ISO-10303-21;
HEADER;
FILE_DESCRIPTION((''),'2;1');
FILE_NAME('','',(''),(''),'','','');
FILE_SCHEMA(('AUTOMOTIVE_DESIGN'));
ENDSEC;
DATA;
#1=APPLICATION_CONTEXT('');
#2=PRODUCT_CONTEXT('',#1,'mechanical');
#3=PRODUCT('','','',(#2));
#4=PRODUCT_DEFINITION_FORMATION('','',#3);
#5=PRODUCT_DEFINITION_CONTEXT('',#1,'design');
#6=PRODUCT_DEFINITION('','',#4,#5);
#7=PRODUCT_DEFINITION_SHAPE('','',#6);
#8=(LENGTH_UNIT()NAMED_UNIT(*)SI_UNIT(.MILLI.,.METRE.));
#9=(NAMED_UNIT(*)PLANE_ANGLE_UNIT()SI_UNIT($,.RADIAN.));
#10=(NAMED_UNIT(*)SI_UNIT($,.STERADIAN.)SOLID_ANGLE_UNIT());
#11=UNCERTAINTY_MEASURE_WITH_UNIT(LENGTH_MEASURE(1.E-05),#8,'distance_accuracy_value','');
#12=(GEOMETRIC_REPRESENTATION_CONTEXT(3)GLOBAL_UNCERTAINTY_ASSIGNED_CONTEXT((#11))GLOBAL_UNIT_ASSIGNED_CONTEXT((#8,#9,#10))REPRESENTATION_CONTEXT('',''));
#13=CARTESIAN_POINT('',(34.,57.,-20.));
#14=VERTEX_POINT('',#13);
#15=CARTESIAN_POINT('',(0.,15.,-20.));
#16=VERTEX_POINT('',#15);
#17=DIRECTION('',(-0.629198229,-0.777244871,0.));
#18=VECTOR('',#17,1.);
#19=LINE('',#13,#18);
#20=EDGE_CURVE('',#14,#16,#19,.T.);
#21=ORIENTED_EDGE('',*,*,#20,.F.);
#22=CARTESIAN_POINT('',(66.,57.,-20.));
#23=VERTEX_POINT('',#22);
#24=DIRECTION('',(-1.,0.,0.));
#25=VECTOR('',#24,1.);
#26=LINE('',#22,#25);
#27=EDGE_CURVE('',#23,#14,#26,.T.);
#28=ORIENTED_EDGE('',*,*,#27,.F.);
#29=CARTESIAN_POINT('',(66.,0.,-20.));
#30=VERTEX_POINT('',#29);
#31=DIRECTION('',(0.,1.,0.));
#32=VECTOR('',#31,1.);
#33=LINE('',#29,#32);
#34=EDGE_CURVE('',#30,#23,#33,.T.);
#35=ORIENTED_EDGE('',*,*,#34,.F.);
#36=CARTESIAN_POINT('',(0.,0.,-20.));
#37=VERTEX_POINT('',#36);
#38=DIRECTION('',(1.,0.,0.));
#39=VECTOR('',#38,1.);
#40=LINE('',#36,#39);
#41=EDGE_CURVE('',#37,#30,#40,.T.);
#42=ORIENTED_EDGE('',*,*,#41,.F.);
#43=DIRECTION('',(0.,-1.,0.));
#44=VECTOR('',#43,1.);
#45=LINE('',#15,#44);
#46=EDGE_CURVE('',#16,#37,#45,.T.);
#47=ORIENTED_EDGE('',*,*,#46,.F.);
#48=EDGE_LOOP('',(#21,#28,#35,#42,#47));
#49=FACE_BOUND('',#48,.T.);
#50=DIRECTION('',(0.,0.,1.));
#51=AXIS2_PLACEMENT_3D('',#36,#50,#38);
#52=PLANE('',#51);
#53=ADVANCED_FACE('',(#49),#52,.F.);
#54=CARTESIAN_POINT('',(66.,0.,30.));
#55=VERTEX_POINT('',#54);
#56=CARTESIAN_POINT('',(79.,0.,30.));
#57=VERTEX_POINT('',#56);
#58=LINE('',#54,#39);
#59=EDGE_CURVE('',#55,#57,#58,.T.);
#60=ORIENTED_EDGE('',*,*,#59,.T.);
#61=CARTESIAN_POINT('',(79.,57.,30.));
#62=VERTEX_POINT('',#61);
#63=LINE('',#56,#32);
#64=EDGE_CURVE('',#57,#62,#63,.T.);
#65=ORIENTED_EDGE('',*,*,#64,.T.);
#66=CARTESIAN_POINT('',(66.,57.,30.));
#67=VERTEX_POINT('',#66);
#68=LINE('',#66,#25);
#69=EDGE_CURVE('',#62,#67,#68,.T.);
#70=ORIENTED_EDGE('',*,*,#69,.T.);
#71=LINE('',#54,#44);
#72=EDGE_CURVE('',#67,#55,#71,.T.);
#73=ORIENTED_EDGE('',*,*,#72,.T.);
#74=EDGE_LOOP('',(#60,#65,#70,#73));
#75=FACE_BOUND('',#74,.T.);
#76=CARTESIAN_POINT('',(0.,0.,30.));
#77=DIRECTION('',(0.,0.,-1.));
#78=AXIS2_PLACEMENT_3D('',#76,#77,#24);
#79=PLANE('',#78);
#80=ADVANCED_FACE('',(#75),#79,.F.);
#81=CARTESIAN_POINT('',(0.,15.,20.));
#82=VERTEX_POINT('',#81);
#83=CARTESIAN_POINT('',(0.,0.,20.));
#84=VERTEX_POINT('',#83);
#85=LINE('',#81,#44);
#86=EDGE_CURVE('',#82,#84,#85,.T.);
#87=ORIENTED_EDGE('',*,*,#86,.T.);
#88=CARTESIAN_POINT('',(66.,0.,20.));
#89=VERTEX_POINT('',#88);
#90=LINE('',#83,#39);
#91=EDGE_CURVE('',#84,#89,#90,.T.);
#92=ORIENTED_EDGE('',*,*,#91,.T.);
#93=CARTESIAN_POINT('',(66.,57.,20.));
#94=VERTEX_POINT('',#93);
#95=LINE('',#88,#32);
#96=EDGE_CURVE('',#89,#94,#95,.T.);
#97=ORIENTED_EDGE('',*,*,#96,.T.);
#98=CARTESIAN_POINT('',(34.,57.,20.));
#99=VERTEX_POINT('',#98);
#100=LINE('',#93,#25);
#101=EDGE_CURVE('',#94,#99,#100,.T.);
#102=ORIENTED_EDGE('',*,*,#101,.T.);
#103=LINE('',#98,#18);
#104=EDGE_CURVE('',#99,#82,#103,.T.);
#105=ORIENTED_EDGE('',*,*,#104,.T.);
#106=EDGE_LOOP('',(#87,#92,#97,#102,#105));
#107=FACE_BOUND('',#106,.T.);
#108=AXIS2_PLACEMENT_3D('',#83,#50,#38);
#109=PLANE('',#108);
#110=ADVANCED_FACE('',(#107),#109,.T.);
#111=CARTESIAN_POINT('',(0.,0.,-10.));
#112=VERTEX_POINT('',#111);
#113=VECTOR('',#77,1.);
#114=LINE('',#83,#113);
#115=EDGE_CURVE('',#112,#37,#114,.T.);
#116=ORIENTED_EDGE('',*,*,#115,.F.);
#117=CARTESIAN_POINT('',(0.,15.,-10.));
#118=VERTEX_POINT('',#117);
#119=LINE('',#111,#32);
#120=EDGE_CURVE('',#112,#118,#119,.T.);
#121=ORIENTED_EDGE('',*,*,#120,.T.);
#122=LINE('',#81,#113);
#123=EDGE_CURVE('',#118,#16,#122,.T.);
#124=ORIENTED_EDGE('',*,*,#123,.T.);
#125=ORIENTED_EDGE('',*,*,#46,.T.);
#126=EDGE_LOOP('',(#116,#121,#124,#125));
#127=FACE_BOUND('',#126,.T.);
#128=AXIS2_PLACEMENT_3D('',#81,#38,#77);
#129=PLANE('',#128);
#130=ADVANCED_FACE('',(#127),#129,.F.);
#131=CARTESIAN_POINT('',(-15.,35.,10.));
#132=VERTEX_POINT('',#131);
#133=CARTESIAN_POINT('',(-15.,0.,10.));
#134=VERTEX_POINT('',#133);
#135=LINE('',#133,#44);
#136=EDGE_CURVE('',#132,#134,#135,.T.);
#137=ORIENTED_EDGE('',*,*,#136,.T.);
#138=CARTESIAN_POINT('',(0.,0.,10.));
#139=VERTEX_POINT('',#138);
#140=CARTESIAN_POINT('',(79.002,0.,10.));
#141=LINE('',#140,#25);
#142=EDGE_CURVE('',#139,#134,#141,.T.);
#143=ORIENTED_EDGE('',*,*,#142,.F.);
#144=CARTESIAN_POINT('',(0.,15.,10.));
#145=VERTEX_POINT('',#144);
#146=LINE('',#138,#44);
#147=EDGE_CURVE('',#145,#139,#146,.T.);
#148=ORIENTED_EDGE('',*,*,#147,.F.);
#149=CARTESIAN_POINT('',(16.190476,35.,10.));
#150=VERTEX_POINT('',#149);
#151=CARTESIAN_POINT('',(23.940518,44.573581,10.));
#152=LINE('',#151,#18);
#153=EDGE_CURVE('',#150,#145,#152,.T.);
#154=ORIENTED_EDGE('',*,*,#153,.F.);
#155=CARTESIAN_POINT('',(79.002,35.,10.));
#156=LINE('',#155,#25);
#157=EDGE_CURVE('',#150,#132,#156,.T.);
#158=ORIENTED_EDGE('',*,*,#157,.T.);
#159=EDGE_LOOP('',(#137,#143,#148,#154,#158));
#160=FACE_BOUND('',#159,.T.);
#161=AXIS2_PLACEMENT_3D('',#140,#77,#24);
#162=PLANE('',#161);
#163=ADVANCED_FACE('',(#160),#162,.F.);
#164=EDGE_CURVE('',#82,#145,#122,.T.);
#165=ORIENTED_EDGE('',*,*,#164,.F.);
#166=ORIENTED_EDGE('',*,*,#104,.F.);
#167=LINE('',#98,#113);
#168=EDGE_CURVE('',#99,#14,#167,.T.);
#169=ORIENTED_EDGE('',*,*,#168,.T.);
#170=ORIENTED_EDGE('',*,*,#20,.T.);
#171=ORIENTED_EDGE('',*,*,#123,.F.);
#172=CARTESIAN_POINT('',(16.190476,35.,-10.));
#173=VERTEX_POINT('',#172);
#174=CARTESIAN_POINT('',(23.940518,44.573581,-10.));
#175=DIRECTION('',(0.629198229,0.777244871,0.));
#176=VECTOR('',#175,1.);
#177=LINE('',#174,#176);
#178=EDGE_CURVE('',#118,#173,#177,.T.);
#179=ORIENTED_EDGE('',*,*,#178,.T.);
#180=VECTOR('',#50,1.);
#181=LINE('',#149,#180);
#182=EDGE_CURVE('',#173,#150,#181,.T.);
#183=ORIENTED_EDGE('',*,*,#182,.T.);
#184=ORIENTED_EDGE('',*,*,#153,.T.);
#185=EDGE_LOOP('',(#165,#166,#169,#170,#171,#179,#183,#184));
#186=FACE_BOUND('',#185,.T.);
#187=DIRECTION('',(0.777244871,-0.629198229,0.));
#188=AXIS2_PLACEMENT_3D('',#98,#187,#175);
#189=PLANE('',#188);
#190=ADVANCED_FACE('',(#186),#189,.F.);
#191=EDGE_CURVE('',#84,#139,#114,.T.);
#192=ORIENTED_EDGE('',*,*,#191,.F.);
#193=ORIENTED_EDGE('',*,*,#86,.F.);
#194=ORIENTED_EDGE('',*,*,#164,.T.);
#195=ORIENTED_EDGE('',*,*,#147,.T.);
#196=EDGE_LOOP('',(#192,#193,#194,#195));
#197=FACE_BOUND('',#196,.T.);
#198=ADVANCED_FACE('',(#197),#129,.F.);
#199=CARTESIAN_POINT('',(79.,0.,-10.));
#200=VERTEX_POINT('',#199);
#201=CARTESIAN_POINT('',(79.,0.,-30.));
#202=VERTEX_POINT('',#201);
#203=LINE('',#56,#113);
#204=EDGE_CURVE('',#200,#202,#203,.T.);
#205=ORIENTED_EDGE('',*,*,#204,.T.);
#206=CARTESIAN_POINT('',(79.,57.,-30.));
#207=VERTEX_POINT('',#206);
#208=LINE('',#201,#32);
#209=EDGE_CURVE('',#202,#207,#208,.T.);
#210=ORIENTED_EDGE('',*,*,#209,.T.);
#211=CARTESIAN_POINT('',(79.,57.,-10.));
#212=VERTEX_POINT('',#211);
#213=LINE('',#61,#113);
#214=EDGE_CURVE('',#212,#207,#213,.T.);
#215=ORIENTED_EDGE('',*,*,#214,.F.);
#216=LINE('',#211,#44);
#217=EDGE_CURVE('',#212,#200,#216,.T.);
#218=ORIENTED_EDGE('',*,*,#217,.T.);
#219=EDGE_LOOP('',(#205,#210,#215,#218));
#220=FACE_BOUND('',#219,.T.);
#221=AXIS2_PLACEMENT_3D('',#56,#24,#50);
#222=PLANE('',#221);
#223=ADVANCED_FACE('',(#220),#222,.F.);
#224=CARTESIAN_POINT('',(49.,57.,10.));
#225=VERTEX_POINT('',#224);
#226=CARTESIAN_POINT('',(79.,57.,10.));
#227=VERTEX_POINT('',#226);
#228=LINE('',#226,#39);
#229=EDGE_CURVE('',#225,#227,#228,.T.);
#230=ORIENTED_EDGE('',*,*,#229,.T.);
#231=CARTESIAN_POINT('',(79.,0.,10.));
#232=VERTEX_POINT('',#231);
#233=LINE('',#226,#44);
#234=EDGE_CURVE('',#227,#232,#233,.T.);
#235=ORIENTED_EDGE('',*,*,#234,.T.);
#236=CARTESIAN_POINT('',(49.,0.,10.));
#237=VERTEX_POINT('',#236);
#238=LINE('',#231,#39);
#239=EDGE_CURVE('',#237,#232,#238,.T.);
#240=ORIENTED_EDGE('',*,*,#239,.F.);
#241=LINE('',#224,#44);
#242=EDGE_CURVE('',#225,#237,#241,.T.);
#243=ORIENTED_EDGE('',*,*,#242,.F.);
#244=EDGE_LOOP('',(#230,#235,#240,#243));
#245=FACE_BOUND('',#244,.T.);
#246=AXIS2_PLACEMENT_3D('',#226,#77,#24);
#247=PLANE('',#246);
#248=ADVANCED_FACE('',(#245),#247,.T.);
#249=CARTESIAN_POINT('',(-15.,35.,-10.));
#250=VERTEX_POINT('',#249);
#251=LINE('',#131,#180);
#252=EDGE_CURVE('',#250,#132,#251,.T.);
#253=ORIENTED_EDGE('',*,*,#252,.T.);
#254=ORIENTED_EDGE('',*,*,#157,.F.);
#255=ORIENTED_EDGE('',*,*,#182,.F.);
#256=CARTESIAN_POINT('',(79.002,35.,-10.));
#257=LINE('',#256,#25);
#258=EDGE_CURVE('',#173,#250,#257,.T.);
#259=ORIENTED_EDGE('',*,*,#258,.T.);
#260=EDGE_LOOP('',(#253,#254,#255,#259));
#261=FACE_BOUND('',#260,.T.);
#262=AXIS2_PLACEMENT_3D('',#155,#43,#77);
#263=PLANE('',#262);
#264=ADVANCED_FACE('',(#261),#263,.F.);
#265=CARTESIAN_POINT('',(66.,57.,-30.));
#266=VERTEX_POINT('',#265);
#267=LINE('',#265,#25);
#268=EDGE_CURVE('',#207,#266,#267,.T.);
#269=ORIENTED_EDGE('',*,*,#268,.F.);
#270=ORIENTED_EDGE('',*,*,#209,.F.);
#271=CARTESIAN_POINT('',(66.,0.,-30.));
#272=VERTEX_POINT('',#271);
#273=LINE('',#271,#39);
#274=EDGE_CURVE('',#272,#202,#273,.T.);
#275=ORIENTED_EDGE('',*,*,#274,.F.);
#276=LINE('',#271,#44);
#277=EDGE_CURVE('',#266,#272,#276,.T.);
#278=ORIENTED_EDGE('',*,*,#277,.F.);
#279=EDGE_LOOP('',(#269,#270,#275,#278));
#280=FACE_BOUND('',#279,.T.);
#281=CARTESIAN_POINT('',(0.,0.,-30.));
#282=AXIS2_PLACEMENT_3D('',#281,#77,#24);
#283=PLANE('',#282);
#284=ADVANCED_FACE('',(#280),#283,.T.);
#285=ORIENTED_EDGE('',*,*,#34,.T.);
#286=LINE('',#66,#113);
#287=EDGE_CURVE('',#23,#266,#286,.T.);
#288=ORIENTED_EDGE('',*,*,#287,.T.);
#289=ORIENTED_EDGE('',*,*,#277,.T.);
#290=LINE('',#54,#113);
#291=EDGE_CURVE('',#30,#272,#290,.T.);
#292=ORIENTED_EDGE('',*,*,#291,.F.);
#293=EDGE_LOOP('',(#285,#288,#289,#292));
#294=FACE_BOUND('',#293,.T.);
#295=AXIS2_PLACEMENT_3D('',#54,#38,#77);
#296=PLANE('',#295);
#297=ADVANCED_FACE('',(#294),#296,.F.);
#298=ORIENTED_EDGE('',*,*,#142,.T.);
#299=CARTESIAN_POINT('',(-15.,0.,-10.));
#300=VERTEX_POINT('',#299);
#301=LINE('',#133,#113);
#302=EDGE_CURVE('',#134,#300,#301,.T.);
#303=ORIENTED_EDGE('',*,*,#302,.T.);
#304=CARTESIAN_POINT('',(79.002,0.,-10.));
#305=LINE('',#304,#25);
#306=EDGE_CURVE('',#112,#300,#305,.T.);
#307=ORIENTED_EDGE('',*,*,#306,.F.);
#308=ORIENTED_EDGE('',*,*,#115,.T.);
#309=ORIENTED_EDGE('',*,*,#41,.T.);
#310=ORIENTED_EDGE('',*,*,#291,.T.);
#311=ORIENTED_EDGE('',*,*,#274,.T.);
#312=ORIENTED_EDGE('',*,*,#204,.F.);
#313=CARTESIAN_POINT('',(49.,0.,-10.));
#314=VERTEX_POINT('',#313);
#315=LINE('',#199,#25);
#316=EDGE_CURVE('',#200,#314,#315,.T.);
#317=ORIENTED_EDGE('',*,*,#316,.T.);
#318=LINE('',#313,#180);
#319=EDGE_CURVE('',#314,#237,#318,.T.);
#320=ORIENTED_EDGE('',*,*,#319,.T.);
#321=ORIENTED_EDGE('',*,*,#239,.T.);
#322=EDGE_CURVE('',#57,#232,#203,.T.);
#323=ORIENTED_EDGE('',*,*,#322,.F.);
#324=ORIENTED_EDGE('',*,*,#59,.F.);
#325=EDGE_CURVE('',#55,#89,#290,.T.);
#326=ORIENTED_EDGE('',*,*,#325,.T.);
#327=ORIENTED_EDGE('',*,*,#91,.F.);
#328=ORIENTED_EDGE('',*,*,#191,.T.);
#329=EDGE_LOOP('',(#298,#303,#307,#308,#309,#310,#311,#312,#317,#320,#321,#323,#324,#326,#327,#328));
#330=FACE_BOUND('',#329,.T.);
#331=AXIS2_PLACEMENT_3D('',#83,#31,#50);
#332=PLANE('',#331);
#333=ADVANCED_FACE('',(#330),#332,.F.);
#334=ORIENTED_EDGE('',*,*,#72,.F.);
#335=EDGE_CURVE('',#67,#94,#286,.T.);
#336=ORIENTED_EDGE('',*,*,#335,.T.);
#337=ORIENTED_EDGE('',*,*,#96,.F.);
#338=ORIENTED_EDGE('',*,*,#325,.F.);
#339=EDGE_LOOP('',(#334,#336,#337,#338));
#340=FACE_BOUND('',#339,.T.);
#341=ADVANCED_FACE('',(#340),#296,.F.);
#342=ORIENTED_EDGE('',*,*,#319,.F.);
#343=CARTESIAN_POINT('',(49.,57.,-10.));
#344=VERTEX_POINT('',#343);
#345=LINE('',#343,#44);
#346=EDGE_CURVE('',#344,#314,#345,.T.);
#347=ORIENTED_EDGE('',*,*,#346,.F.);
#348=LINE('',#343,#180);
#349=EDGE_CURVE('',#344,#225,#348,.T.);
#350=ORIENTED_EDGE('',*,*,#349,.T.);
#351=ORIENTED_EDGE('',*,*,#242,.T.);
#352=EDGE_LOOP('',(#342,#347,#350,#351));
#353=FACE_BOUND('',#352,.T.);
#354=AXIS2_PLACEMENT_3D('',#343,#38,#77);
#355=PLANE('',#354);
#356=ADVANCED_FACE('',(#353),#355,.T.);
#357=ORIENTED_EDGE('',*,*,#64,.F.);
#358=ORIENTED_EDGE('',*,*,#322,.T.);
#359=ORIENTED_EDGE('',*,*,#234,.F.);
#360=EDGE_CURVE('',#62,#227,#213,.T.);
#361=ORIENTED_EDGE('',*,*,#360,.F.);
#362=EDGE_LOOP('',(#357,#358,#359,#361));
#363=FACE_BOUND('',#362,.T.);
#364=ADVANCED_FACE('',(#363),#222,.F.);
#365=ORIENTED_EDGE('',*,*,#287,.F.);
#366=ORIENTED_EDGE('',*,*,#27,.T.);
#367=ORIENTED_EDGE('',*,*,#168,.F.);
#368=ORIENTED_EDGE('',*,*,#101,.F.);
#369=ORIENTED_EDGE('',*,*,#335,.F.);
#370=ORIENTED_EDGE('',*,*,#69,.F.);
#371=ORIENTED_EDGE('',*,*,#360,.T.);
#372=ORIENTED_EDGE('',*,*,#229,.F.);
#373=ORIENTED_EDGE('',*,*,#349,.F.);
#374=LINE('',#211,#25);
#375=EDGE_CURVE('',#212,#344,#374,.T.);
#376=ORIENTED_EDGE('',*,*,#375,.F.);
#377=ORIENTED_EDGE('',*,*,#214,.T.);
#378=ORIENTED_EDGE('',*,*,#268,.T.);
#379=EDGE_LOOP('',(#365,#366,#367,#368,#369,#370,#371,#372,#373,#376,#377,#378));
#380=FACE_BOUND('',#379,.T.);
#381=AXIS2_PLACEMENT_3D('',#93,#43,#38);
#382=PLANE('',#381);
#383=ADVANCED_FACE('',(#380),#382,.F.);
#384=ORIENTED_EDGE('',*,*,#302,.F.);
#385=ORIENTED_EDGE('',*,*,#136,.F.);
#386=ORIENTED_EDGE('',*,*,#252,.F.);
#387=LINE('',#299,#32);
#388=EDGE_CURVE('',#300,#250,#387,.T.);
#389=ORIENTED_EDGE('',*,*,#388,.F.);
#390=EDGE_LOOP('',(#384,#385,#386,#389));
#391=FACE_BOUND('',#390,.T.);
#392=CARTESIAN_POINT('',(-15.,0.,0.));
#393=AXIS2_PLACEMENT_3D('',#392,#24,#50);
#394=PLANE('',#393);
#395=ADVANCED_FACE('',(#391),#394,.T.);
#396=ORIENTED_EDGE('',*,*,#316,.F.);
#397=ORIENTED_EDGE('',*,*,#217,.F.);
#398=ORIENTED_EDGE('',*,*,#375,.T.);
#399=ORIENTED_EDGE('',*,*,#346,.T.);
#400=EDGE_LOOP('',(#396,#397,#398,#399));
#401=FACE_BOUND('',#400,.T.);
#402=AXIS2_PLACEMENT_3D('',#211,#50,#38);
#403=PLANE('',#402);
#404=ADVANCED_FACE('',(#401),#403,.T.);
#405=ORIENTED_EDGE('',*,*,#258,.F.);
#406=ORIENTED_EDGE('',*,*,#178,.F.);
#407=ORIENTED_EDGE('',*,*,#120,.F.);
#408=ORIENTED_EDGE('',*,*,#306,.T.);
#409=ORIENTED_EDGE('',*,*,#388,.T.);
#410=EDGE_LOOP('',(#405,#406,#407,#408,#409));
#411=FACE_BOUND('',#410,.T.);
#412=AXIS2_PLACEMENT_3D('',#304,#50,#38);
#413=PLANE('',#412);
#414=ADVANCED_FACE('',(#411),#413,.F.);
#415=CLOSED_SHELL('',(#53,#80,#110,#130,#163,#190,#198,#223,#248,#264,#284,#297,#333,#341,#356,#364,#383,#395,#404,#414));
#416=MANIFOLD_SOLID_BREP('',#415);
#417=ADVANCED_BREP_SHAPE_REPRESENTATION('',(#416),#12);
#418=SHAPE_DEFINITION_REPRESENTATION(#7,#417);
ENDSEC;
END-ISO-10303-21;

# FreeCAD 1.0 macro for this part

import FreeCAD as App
import Part
import Sketcher

V = App.Vector
Q = App.Units.Quantity

doc = App.newDocument("Part")
body = doc.addObject("PartDesign::Body", "Body")

sketch1 = body.newObject("Sketcher::SketchObject", "Sketch")
sketch1.AttachmentSupport = (doc.getObject("XY_Plane"), [""])
sketch1.MapMode = "FlatFace"
sketch1.addGeometry(Part.LineSegment(V(0, 0, 0), V(66, 0, 0)), False)
sketch1.addGeometry(Part.LineSegment(V(66, 0, 0), V(66, 57, 0)), False)
sketch1.addGeometry(Part.LineSegment(V(66, 57, 0), V(34, 57, 0)), False)
sketch1.addGeometry(Part.LineSegment(V(34, 57, 0), V(0, 15, 0)), False)
sketch1.addGeometry(Part.LineSegment(V(0, 15, 0), V(0, 0, 0)), False)
sketch1.addConstraint(Sketcher.Constraint("Coincident", 0, 2, 1, 1))
sketch1.addConstraint(Sketcher.Constraint("Coincident", 1, 2, 2, 1))
sketch1.addConstraint(Sketcher.Constraint("Coincident", 2, 2, 3, 1))
sketch1.addConstraint(Sketcher.Constraint("Coincident", 3, 2, 4, 1))
sketch1.addConstraint(Sketcher.Constraint("Coincident", 4, 2, 0, 1))
sketch1.addConstraint(Sketcher.Constraint("Horizontal", 0))
sketch1.addConstraint(Sketcher.Constraint("Vertical", 1))
sketch1.addConstraint(Sketcher.Constraint("Horizontal", 2))
sketch1.addConstraint(Sketcher.Constraint("Vertical", 4))
sketch1.addConstraint(Sketcher.Constraint("Coincident", 4, 2, -1, 1))
sketch1.addConstraint(Sketcher.Constraint("DistanceX", 0, 1, 0, 2, Q("66 mm")))
sketch1.addConstraint(Sketcher.Constraint("DistanceX", 2, 2, 2, 1, Q("32 mm")))
sketch1.addConstraint(Sketcher.Constraint("DistanceY", 1, 1, 1, 2, Q("57 mm")))
sketch1.addConstraint(Sketcher.Constraint("DistanceY", 4, 2, 4, 1, Q("15 mm")))
pad1 = body.newObject("PartDesign::Pad", "Pad")
pad1.Profile = sketch1
pad1.Length = 40
pad1.Midplane = True

sketch2 = body.newObject("Sketcher::SketchObject", "Sketch001")
sketch2.AttachmentSupport = (doc.getObject("XY_Plane"), [""])
sketch2.MapMode = "FlatFace"
sketch2.addGeometry(Part.LineSegment(V(66, 57, 0), V(66, 0, 0)), False)
sketch2.addGeometry(Part.LineSegment(V(66, 0, 0), V(79, 0, 0)), False)
sketch2.addGeometry(Part.LineSegment(V(79, 0, 0), V(79, 57, 0)), False)
sketch2.addGeometry(Part.LineSegment(V(79, 57, 0), V(66, 57, 0)), False)
sketch2.addConstraint(Sketcher.Constraint("Coincident", 0, 2, 1, 1))
sketch2.addConstraint(Sketcher.Constraint("Coincident", 1, 2, 2, 1))
sketch2.addConstraint(Sketcher.Constraint("Coincident", 2, 2, 3, 1))
sketch2.addConstraint(Sketcher.Constraint("Coincident", 3, 2, 0, 1))
sketch2.addConstraint(Sketcher.Constraint("Vertical", 0))
sketch2.addConstraint(Sketcher.Constraint("Horizontal", 1))
sketch2.addConstraint(Sketcher.Constraint("Vertical", 2))
sketch2.addConstraint(Sketcher.Constraint("Horizontal", 3))
sketch2.addConstraint(Sketcher.Constraint("PointOnObject", 0, 2, -1))
sketch2.addConstraint(Sketcher.Constraint("DistanceX", 1, 1, 1, 2, Q("13 mm")))
sketch2.addConstraint(Sketcher.Constraint("DistanceY", 0, 2, 0, 1, Q("57 mm")))
sketch2.addConstraint(Sketcher.Constraint("DistanceX", -1, 1, 0, 2, Q("66 mm")))
pad2 = body.newObject("PartDesign::Pad", "Pad001")
pad2.Profile = sketch2
pad2.Length = 60
pad2.Midplane = True

sketch3 = body.newObject("Sketcher::SketchObject", "Sketch002")
sketch3.AttachmentSupport = (doc.getObject("XZ_Plane"), [""])
sketch3.MapMode = "FlatFace"
sketch3.addGeometry(Part.LineSegment(V(49, -10, 0), V(49, 10, 0)), False)
sketch3.addGeometry(Part.LineSegment(V(49, 10, 0), V(79, 10, 0)), False)
sketch3.addGeometry(Part.LineSegment(V(79, 10, 0), V(79, -10, 0)), False)
sketch3.addGeometry(Part.LineSegment(V(79, -10, 0), V(49, -10, 0)), False)
sketch3.addConstraint(Sketcher.Constraint("Coincident", 0, 2, 1, 1))
sketch3.addConstraint(Sketcher.Constraint("Coincident", 1, 2, 2, 1))
sketch3.addConstraint(Sketcher.Constraint("Coincident", 2, 2, 3, 1))
sketch3.addConstraint(Sketcher.Constraint("Coincident", 3, 2, 0, 1))
sketch3.addConstraint(Sketcher.Constraint("Vertical", 0))
sketch3.addConstraint(Sketcher.Constraint("Horizontal", 1))
sketch3.addConstraint(Sketcher.Constraint("Vertical", 2))
sketch3.addConstraint(Sketcher.Constraint("Horizontal", 3))
sketch3.addConstraint(Sketcher.Constraint("DistanceX", 1, 1, 1, 2, Q("30 mm")))
sketch3.addConstraint(Sketcher.Constraint("DistanceY", 0, 1, 0, 2, Q("20 mm")))
sketch3.addConstraint(Sketcher.Constraint("DistanceX", -1, 1, 0, 2, Q("49 mm")))
sketch3.addConstraint(Sketcher.Constraint("DistanceY", -1, 1, 0, 2, Q("10 mm")))
pocket1 = body.newObject("PartDesign::Pocket", "Pocket")
pocket1.Profile = sketch3
pocket1.Type = "ThroughAll"

sketch4 = body.newObject("Sketcher::SketchObject", "Sketch003")
sketch4.AttachmentSupport = (doc.getObject("YZ_Plane"), [""])
sketch4.MapMode = "FlatFace"
sketch4.AttachmentOffset = App.Placement(V(0, 0, -15), App.Rotation())
sketch4.addGeometry(Part.LineSegment(V(35, 10, 0), V(0, 10, 0)), False)
sketch4.addGeometry(Part.LineSegment(V(0, 10, 0), V(0, -10, 0)), False)
sketch4.addGeometry(Part.LineSegment(V(0, -10, 0), V(35, -10, 0)), False)
sketch4.addGeometry(Part.LineSegment(V(35, -10, 0), V(35, 10, 0)), False)
sketch4.addConstraint(Sketcher.Constraint("Coincident", 0, 2, 1, 1))
sketch4.addConstraint(Sketcher.Constraint("Coincident", 1, 2, 2, 1))
sketch4.addConstraint(Sketcher.Constraint("Coincident", 2, 2, 3, 1))
sketch4.addConstraint(Sketcher.Constraint("Coincident", 3, 2, 0, 1))
sketch4.addConstraint(Sketcher.Constraint("Horizontal", 0))
sketch4.addConstraint(Sketcher.Constraint("Vertical", 1))
sketch4.addConstraint(Sketcher.Constraint("Horizontal", 2))
sketch4.addConstraint(Sketcher.Constraint("Vertical", 3))
sketch4.addConstraint(Sketcher.Constraint("Symmetric", 0, 2, 1, 2, -1, 1))
sketch4.addConstraint(Sketcher.Constraint("DistanceX", 0, 2, 0, 1, Q("35 mm")))
sketch4.addConstraint(Sketcher.Constraint("DistanceY", 1, 2, 1, 1, Q("20 mm")))
pad3 = body.newObject("PartDesign::Pad", "Pad002")
pad3.Profile = sketch4
pad3.Length = 31.190476

doc.recompute()
